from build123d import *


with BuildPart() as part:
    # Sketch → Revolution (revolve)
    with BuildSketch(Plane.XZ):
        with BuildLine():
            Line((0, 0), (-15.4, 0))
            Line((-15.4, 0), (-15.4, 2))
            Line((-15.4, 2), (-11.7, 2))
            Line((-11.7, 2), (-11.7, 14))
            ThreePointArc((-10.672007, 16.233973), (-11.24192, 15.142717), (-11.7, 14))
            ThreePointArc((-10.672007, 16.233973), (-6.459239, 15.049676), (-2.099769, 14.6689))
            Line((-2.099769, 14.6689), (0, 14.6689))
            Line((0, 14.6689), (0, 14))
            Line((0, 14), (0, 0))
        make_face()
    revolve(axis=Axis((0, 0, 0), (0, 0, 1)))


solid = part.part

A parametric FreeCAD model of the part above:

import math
import FreeCAD as App
import Part
import Sketcher

V = App.Vector
Q = App.Units.Quantity

doc = App.newDocument("Part")
params = doc.addObject("Spreadsheet::Sheet", "Params")
for row, (alias, value) in enumerate([
    ("sketch1_height", "12 mm"),
    ("sketch1_height2", "2 mm"),
    ("sketch1_width", "15.4 mm"),
    ("sketch1_width2", "3.7 mm"),
    ("revolution_angle", "360 deg"),
], start=1):
    params.set(f"A{row}", alias)
    params.set(f"B{row}", "=" + value)
    params.setAlias(f"B{row}", alias)

body = doc.addObject("PartDesign::Body", "Body")

sketch1 = body.newObject("Sketcher::SketchObject", "Sketch")
sketch1.AttachmentSupport = (doc.getObject("XZ_Plane"), [""])
sketch1.MapMode = "FlatFace"
sketch1.addGeometry(Part.LineSegment(V(-15.4, 0, 0), V(0, 0, 0)), False)
sketch1.addGeometry(Part.LineSegment(V(0, 0, 0), V(0, 14.7, 0)), False)
sketch1.addGeometry(Part.LineSegment(V(0, 14.7, 0), V(-2.1, 14.7, 0)), False)
sketch1.addGeometry(Part.ArcOfCircle(Part.Circle(V(-2.2, 38.1, 0), V(0, 0, 1), 23.4), math.radians(-111), math.radians(-90)), False)
sketch1.addGeometry(Part.ArcOfCircle(Part.Circle(V(-0.1, 10, 0), V(0, 0, 1), 12.3), math.radians(149.56), math.radians(161.02)), False)
sketch1.addGeometry(Part.LineSegment(V(-11.7, 14, 0), V(-11.7, 2, 0)), False)
sketch1.addGeometry(Part.LineSegment(V(-11.7, 2, 0), V(-15.4, 2, 0)), False)
sketch1.addGeometry(Part.LineSegment(V(-15.4, 2, 0), V(-15.4, 0, 0)), False)
sketch1.addConstraint(Sketcher.Constraint("Coincident", 0, 2, 1, 1))
sketch1.addConstraint(Sketcher.Constraint("Coincident", 1, 2, 2, 1))
sketch1.addConstraint(Sketcher.Constraint("Coincident", 2, 2, 3, 2))
sketch1.addConstraint(Sketcher.Constraint("Coincident", 3, 1, 4, 1))
sketch1.addConstraint(Sketcher.Constraint("Coincident", 4, 2, 5, 1))
sketch1.addConstraint(Sketcher.Constraint("Coincident", 5, 2, 6, 1))
sketch1.addConstraint(Sketcher.Constraint("Coincident", 6, 2, 7, 1))
sketch1.addConstraint(Sketcher.Constraint("Coincident", 7, 2, 0, 1))
sketch1.addConstraint(Sketcher.Constraint("Horizontal", 0))
sketch1.addConstraint(Sketcher.Constraint("Vertical", 1))
sketch1.addConstraint(Sketcher.Constraint("Horizontal", 2))
sketch1.addConstraint(Sketcher.Constraint("Vertical", 5))
sketch1.addConstraint(Sketcher.Constraint("Horizontal", 6))
sketch1.addConstraint(Sketcher.Constraint("Vertical", 7))
sketch1.addConstraint(Sketcher.Constraint("Coincident", 0, 2, -1, 1))
sketch1.addConstraint(Sketcher.Constraint("DistanceY", 5, 2, 5, 1, Q("12 mm")))
sketch1.addConstraint(Sketcher.Constraint("DistanceY", 7, 2, 7, 1, Q("2 mm")))
sketch1.addConstraint(Sketcher.Constraint("DistanceX", 0, 1, 0, 2, Q("15.4 mm")))
sketch1.addConstraint(Sketcher.Constraint("DistanceX", 6, 2, 6, 1, Q("3.7 mm")))
sketch1.addConstraint(Sketcher.Constraint("Radius", 4, Q("12.311761 mm")))
sketch1.addConstraint(Sketcher.Constraint("DistanceY", 1, 1, 1, 2, Q("14.6689 mm")))
sketch1.addConstraint(Sketcher.Constraint("Radius", 3, Q("23.445025 mm")))
sketch1.addConstraint(Sketcher.Constraint("DistanceX", 2, 2, 2, 1, Q("2.099769 mm")))
sketch1.addConstraint(Sketcher.Constraint("DistanceY", 4, 3, 3, 3, Q("28.1174 mm")))
sketch1.addConstraint(Sketcher.Constraint("DistanceX", 3, 3, -1, 1, Q("2.248379 mm")))
sketch1.setExpression("Constraints[15]", "Params.sketch1_height")
sketch1.setExpression("Constraints[16]", "Params.sketch1_height2")
sketch1.setExpression("Constraints[17]", "Params.sketch1_width")
sketch1.setExpression("Constraints[18]", "Params.sketch1_width2")
revolution = body.newObject("PartDesign::Revolution", "Revolution")
revolution.Profile = sketch1
revolution.ReferenceAxis = (sketch1, ["V_Axis"])
revolution.setExpression("Angle", "Params.revolution_angle")

doc.recompute()
